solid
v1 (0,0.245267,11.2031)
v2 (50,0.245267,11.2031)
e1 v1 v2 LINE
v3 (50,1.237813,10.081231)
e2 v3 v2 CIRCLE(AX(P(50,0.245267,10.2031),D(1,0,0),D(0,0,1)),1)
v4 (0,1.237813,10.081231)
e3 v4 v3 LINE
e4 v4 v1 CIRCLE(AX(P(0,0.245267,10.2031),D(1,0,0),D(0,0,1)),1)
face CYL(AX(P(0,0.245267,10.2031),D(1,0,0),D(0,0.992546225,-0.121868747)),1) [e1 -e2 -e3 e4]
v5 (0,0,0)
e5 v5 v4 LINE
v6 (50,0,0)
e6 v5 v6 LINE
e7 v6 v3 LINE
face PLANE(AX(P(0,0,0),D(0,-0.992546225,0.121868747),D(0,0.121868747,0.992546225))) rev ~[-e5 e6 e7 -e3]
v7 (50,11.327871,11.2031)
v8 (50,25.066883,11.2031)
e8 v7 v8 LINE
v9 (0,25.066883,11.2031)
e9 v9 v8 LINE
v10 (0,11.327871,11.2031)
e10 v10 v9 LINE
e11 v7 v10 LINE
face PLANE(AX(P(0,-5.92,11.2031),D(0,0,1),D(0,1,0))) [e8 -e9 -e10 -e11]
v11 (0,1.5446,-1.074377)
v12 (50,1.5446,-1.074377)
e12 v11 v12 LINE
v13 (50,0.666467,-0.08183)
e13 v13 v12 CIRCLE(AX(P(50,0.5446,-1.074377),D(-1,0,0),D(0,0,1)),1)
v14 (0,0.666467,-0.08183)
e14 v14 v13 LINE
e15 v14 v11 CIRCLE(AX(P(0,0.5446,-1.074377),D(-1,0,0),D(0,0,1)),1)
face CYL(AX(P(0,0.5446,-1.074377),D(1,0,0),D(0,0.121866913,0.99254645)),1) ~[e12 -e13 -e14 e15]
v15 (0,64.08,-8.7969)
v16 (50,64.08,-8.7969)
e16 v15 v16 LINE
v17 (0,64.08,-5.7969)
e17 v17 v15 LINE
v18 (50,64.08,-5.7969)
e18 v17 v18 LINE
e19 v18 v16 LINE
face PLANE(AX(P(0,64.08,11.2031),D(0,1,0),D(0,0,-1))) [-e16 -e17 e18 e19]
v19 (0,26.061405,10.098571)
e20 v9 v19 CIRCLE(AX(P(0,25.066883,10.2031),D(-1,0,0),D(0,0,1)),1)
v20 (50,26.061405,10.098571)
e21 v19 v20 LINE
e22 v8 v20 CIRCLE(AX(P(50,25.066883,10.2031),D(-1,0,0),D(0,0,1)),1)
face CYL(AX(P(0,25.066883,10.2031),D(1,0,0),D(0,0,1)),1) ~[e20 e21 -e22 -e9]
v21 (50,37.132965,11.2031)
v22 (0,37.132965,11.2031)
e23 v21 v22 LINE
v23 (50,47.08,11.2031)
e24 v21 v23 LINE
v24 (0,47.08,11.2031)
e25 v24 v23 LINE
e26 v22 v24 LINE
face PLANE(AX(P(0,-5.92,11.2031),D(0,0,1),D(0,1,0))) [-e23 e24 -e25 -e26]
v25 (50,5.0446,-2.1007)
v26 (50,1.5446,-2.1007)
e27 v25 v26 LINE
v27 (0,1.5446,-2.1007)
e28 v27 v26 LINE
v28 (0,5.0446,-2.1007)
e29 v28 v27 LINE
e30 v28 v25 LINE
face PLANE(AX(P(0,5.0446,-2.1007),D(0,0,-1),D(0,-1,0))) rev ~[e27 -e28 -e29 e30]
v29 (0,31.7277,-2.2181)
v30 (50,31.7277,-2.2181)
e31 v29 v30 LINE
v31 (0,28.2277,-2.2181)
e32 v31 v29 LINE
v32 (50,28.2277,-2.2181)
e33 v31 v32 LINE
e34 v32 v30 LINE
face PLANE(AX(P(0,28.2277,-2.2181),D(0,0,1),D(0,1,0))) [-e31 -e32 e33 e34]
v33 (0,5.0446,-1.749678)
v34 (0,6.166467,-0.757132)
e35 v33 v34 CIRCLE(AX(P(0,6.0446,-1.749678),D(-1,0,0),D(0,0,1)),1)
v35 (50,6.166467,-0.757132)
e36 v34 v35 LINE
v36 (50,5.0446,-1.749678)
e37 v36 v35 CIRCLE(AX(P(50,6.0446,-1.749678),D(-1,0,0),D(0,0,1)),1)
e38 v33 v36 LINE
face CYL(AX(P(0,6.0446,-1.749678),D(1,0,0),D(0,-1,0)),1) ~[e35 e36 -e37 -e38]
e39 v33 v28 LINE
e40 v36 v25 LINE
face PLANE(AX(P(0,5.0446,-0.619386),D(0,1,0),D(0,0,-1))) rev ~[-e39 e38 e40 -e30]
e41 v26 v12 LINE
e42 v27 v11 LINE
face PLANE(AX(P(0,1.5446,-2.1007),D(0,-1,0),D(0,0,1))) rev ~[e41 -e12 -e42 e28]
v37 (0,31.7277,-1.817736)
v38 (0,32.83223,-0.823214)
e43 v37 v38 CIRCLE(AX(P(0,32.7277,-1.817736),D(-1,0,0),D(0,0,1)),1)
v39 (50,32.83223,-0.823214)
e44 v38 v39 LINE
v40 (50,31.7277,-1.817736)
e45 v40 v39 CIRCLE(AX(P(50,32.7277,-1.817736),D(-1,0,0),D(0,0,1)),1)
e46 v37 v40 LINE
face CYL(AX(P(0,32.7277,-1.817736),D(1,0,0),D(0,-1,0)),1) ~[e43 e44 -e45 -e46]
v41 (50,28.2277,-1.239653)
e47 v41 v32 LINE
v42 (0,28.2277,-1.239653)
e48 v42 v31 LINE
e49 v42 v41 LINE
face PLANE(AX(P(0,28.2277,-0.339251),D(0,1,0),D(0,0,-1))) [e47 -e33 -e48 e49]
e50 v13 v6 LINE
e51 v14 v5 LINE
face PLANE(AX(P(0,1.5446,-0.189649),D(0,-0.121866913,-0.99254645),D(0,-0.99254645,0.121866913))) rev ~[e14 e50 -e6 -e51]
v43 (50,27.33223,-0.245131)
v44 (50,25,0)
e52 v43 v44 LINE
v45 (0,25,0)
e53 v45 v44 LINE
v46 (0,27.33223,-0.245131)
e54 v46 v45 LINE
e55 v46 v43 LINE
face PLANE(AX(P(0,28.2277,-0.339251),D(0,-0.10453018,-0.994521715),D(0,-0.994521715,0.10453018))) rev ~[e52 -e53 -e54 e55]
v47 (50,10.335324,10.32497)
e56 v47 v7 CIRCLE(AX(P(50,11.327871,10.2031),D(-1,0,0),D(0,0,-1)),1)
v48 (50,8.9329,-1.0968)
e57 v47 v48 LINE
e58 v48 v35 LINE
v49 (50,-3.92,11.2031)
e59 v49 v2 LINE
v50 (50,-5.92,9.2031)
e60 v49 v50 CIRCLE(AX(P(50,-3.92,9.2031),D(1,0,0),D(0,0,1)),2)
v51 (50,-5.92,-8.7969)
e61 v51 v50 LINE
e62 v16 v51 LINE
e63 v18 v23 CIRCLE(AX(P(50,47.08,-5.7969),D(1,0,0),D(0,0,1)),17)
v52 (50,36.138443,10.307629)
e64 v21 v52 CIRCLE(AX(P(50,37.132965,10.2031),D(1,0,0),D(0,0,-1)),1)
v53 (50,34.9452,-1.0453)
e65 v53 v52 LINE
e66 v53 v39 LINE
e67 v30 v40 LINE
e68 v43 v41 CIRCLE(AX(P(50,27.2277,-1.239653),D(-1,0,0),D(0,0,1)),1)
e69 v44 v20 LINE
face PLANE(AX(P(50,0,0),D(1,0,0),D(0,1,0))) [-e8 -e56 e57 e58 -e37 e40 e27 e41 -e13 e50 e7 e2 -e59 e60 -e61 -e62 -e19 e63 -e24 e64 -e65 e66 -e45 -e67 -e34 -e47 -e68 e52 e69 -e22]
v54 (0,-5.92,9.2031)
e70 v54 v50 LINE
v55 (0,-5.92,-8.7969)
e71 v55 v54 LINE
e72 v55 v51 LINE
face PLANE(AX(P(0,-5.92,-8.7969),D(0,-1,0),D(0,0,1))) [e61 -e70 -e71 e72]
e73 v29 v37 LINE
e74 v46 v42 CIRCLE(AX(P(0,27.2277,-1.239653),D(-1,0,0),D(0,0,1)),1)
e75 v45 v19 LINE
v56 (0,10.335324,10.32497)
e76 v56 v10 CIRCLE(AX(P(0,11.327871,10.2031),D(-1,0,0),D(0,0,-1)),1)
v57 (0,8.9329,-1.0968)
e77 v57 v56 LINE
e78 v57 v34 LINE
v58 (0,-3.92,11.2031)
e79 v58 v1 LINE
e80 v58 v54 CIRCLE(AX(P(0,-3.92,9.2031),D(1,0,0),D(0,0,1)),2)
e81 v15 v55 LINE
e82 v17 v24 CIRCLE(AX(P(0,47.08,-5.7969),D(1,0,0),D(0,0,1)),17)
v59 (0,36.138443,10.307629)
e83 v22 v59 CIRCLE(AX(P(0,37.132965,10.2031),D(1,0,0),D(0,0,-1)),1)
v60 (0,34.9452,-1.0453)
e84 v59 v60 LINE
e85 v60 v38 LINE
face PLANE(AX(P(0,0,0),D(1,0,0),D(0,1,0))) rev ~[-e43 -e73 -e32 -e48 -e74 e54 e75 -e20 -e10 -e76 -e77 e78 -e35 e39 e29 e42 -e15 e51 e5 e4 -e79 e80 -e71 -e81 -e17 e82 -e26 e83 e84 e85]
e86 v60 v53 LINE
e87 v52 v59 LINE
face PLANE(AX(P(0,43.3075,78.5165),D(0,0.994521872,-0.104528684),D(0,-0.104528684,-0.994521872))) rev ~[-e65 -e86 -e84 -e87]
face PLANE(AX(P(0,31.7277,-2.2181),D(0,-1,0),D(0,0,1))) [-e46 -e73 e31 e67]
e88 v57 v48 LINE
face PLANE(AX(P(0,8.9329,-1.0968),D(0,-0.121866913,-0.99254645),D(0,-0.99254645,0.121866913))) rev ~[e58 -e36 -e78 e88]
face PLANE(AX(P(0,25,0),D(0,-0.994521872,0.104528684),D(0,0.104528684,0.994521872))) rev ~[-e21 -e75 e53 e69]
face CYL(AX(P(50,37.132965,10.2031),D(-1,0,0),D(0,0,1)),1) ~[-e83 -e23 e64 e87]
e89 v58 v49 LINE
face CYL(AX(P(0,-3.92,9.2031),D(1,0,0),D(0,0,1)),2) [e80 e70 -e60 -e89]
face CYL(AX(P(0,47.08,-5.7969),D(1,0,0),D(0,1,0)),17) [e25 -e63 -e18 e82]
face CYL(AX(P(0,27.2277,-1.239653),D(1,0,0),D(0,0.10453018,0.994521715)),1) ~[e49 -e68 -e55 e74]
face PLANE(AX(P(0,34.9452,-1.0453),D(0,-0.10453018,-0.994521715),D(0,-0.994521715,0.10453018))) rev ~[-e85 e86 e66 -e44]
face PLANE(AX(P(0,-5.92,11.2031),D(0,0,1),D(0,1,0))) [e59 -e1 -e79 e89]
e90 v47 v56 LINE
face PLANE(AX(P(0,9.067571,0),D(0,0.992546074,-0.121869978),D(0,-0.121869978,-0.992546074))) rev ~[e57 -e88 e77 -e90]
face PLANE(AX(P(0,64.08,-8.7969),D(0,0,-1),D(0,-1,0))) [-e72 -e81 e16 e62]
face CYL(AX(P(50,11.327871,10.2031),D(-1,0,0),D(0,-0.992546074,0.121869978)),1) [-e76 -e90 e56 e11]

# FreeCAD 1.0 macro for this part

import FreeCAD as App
import Part
import Sketcher
Q = App.Units.Quantity


def edges_at(feature, points):
    """Names of the edges that pass closest to the given points."""
    edges = feature.Shape.Edges
    near = lambda p: min(range(len(edges)), key=lambda i: edges[i].distToShape(Part.Vertex(*p))[0])
    return sorted({f"Edge{near(p) + 1}" for p in points})


def add_polygon(sketch, points):
    """Adds a closed chain of lines whose ends are joined by coincident constraints."""
    first, n = sketch.GeometryCount, len(points)
    for a, b in zip(points, points[1:] + points[:1]):
        sketch.addGeometry(Part.LineSegment(App.Vector(*a, 0), App.Vector(*b, 0)), False)
    for i in range(n):
        sketch.addConstraint(Sketcher.Constraint("Coincident", first + i, 2, first + (i + 1) % n, 1))

doc = App.newDocument("Part")
body = doc.addObject("PartDesign::Body", "Body")

sketch1 = doc.addObject("Sketcher::SketchObject", "Sketch")
body.addObject(sketch1)
sketch1.AttachmentSupport = (doc.YZ_Plane, [""])
sketch1.MapMode = "FlatFace"
add_polygon(sketch1, [(64.08, 11.2031), (-5.92, 11.2031), (-5.92, -8.7969), (64.08, -8.7969)])
sketch1.addConstraint([
    Sketcher.Constraint("Horizontal", 0),
    Sketcher.Constraint("Vertical", 1),
    Sketcher.Constraint("Horizontal", 2),
    Sketcher.Constraint("Vertical", 3),
    Sketcher.Constraint("DistanceX", 0, 2, 0, 1, Q("70 mm")),
    Sketcher.Constraint("DistanceY", 1, 2, 1, 1, Q("20 mm")),
    Sketcher.Constraint("DistanceX", 0, 2, -1, 1, Q("5.92 mm")),
    Sketcher.Constraint("DistanceY", -1, 1, 0, 2, Q("11.203 mm")),
])
pad1 = doc.addObject("PartDesign::Pad", "Pad")
body.addObject(pad1)
pad1.Profile = sketch1
pad1.Length = 50

sketch2 = doc.addObject("Sketcher::SketchObject", "Sketch001")
body.addObject(sketch2)
sketch2.AttachmentSupport = (doc.YZ_Plane, [""])
sketch2.MapMode = "FlatFace"
add_polygon(sketch2, [(33.3623, 79.5618), (25, 0), (28.2277, -0.339251), (28.2277, -2.2181), (31.7277, -2.2181), (31.7277, -0.707122), (34.9452, -1.0453), (43.3075, 78.5165)])
add_polygon(sketch2, [(8.9329, -1.0968), (18.6825, 78.3069), (9.7495, 79.4037), (0, 0), (1.5446, -0.189649), (1.5446, -2.1007), (5.0446, -2.1007), (5.0446, -0.619386)])
sketch2.addConstraint([
    Sketcher.Constraint("Vertical", 2),
    Sketcher.Constraint("Horizontal", 3),
    Sketcher.Constraint("Vertical", 4),
    Sketcher.Constraint("Vertical", 12),
    Sketcher.Constraint("Horizontal", 13),
    Sketcher.Constraint("Vertical", 14),
    Sketcher.Constraint("Coincident", 10, 2, -1, 1),
    Sketcher.Constraint("PointOnObject", 0, 2, -1),
    Sketcher.Constraint("Perpendicular", 0, 1),
    Sketcher.Constraint("Parallel", 1, 5),
    Sketcher.Constraint("Perpendicular", 5, 6),
    Sketcher.Constraint("Perpendicular", 6, 7),
    Sketcher.Constraint("Perpendicular", 8, 9),
    Sketcher.Constraint("Perpendicular", 9, 10),
    Sketcher.Constraint("Perpendicular", 10, 11),
    Sketcher.Constraint("Parallel", 11, 15),
    Sketcher.Constraint("Equal", 3, 13),
    Sketcher.Constraint("Equal", 0, 6),
    Sketcher.Constraint("Equal", 6, 8),
    Sketcher.Constraint("Equal", 8, 10),
    Sketcher.Constraint("Angle", 0, Q("-96 deg")),
    Sketcher.Constraint("Angle", 10, Q("-97 deg")),
    Sketcher.Constraint("Distance", 0, Q("80 mm")),
    Sketcher.Constraint("Distance", 7, Q("10 mm")),
    Sketcher.Constraint("Distance", 9, Q("9 mm")),
    Sketcher.Constraint("DistanceX", 3, 1, 3, 2, Q("3.5 mm")),
    Sketcher.Constraint("DistanceX", -1, 1, 0, 2, Q("25 mm")),
    Sketcher.Constraint("DistanceY", 4, 1, 4, 2, Q("1.511 mm")),
    Sketcher.Constraint("DistanceY", 12, 2, 12, 1, Q("1.911 mm")),
    Sketcher.Constraint("DistanceY", 2, 2, -1, 1, Q("2.218 mm")),
    Sketcher.Constraint("DistanceX", 11, 2, 1, 2, Q("26.683 mm")),
])
pocket1 = doc.addObject("PartDesign::Pocket", "Pocket")
body.addObject(pocket1)
pocket1.Profile = sketch2
pocket1.Length = 50
pocket1.Reversed = True
doc.recompute()

fillet = doc.addObject("PartDesign::Fillet", "Fillet")
body.addObject(fillet)
fillet.Base = (pocket1, edges_at(pocket1, [
    (25, 5.045, -0.619),
    (25, 1.545, -0.19),
    (25, 31.728, -0.707),
    (25, 28.228, -0.339),
]))
fillet.Radius = 1
doc.recompute()

fillet2 = doc.addObject("PartDesign::Fillet", "Fillet001")
body.addObject(fillet2)
fillet2.Base = (fillet, edges_at(fillet, [
    (25, 10.443, 11.203),
    (25, 36.233, 11.203),
    (25, 26.177, 11.203),
    (25, 1.376, 11.203),
]))
fillet2.Radius = 1
doc.recompute()

fillet3 = doc.addObject("PartDesign::Fillet", "Fillet002")
body.addObject(fillet3)
fillet3.Base = (fillet2, edges_at(fillet2, [(25, -5.92, 11.203)]))
fillet3.Radius = 2
doc.recompute()

fillet4 = doc.addObject("PartDesign::Fillet", "Fillet003")
body.addObject(fillet4)
fillet4.Base = (fillet3, edges_at(fillet3, [(25, 64.08, 11.203)]))
fillet4.Radius = 17

doc.recompute()
